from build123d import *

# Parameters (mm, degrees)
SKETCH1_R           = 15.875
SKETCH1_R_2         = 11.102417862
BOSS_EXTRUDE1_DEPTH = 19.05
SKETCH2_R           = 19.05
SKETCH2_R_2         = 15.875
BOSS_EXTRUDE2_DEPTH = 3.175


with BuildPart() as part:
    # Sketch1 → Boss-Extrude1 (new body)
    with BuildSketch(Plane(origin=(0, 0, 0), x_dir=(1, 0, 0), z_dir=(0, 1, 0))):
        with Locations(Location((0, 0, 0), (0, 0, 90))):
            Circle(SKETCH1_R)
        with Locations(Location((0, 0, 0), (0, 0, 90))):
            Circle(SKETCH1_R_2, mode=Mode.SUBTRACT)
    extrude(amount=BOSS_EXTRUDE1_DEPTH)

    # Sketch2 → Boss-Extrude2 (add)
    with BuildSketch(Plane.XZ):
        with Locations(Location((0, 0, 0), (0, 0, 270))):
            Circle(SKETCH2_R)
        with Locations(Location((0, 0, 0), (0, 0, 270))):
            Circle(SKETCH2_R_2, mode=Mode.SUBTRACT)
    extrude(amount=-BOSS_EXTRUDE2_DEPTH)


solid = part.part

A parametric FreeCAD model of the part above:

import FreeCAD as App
import Part
import Sketcher
from FreeCAD import Vector
Q = App.Units.Quantity

doc = App.newDocument("Part")
body = doc.addObject("PartDesign::Body", "Body")

# Sketch on XZ plane
sketch1 = body.newObject("Sketcher::SketchObject", "Sketch")
sketch1.AttachmentSupport = (doc.getObject("XZ_Plane"), [""])
sketch1.MapMode = "FlatFace"
sketch1.addGeometry([
    Part.Circle(Vector(0, 0, 0), Vector(0, 0, 1), 15.875),
    Part.Circle(Vector(0, 0, 0), Vector(0, 0, 1), 11.102418),
], False)
sketch1.addConstraint([
    Sketcher.Constraint("Coincident", 0, 3, -1, 1),
    Sketcher.Constraint("Coincident", 1, 3, -1, 1),
    Sketcher.Constraint("Diameter", 0, Q("1.25 in")),
    Sketcher.Constraint("Diameter", 1, 22.204836),
])
pad1 = body.newObject("PartDesign::Pad", "Pad")
pad1.Profile = sketch1
pad1.Length = Q("0.75 in")
pad1.Reversed = True

# Sketch on XZ plane
sketch2 = body.newObject("Sketcher::SketchObject", "Sketch001")
sketch2.AttachmentSupport = (doc.getObject("XZ_Plane"), [""])
sketch2.MapMode = "FlatFace"
sketch2.addGeometry([
    Part.Circle(Vector(0, 0, 0), Vector(0, 0, 1), 19.05),
    Part.Circle(Vector(0, 0, 0), Vector(0, 0, 1), 15.875),
], False)
sketch2.addConstraint([
    Sketcher.Constraint("Coincident", 0, 3, -1, 1),
    Sketcher.Constraint("Coincident", 1, 3, -1, 1),
    Sketcher.Constraint("Diameter", 0, Q("1.5 in")),
    Sketcher.Constraint("Diameter", 1, Q("1.25 in")),
])
pad2 = body.newObject("PartDesign::Pad", "Pad001")
pad2.Profile = sketch2
pad2.Length = Q("0.125 in")
pad2.Reversed = True

doc.recompute()
